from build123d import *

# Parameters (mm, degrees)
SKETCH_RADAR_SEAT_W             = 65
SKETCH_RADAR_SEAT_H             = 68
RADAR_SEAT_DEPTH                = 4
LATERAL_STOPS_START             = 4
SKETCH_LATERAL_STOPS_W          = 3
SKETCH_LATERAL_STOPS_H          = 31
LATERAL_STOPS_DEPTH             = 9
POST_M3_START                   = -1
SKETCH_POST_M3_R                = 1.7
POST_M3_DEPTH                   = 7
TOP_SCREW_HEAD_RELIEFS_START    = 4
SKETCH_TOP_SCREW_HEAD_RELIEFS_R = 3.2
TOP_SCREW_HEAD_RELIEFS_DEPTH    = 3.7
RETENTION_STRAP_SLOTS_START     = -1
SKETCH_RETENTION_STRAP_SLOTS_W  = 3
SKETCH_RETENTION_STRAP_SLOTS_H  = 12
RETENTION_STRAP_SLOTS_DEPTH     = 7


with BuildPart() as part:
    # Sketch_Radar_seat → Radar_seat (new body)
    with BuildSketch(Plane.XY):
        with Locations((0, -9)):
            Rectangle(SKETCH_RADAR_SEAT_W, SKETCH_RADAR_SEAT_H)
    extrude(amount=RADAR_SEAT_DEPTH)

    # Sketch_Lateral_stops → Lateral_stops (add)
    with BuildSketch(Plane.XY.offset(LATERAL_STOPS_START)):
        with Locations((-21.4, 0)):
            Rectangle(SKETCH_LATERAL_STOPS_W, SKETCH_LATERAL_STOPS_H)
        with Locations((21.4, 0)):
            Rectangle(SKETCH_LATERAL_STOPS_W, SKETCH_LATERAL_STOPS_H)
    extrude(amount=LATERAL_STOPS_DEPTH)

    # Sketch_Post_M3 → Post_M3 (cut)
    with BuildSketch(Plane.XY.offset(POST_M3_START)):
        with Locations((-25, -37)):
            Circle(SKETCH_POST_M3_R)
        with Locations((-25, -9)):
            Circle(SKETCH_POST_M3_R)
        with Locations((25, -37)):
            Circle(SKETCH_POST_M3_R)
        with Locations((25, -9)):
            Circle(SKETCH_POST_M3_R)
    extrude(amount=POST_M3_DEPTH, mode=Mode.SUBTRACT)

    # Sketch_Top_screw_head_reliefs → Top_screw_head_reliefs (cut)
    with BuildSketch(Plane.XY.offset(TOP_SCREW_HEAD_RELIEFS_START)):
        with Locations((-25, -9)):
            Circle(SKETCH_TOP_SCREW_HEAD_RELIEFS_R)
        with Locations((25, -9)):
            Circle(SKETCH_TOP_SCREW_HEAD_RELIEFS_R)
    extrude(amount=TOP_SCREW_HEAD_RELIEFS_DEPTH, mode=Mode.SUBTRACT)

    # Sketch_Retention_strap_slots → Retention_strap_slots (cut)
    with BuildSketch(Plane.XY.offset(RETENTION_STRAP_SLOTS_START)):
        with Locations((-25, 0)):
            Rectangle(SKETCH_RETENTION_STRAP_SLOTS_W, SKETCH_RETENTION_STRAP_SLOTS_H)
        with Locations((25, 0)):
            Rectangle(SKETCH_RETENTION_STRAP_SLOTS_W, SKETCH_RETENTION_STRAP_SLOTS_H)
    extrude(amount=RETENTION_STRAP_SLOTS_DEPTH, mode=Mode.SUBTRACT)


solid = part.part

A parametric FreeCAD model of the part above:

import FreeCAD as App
import Part
import Sketcher

V = App.Vector
Q = App.Units.Quantity


def add_polygon(sketch, points):
    """Adds a closed chain of lines whose ends are joined by coincident constraints."""
    first, n = sketch.GeometryCount, len(points)
    for a, b in zip(points, points[1:] + points[:1]):
        sketch.addGeometry(Part.LineSegment(App.Vector(*a, 0), App.Vector(*b, 0)), False)
    for i in range(n):
        sketch.addConstraint(Sketcher.Constraint("Coincident", first + i, 2, first + (i + 1) % n, 1))

doc = App.newDocument("Part")
body = doc.addObject("PartDesign::Body", "Body")

# Sketch on XY plane
sketch1 = body.newObject("Sketcher::SketchObject", "Sketch")
sketch1.AttachmentSupport = (doc.getObject("XY_Plane"), [""])
sketch1.MapMode = "FlatFace"
add_polygon(sketch1, [(-32, 25), (-32, -43), (32, -43), (32, 25)])  # lines 0-3
sketch1.addConstraint(Sketcher.Constraint("Vertical", 0))
sketch1.addConstraint(Sketcher.Constraint("Horizontal", 1))
sketch1.addConstraint(Sketcher.Constraint("Vertical", 2))
sketch1.addConstraint(Sketcher.Constraint("Horizontal", 3))
sketch1.addConstraint(Sketcher.Constraint("DistanceX", 1, 1, 1, 2, Q("65 mm")))
sketch1.addConstraint(Sketcher.Constraint("DistanceY", 0, 2, 0, 1, Q("68 mm")))
sketch1.addConstraint(Sketcher.Constraint("DistanceY", 0, 2, -1, 1, Q("43 mm")))
sketch1.addConstraint(Sketcher.Constraint("DistanceX", 0, 2, -1, 1, Q("32.5 mm")))
pad1 = body.newObject("PartDesign::Pad", "Pad")
pad1.Profile = sketch1
pad1.Length = 4

# Sketch on XY plane
sketch2 = body.newObject("Sketcher::SketchObject", "Sketch001")
sketch2.AttachmentSupport = (doc.getObject("XY_Plane"), [""])
sketch2.MapMode = "FlatFace"
sketch2.AttachmentOffset = App.Placement(V(0, 0, 4), App.Rotation())
add_polygon(sketch2, [(-22.9, 15.5), (-22.9, -15.5), (-19.9, -15.5), (-19.9, 15.5)])  # lines 0-3
add_polygon(sketch2, [(19.9, 15.5), (19.9, -15.5), (22.9, -15.5), (22.9, 15.5)])  # lines 4-7
sketch2.addConstraint(Sketcher.Constraint("Vertical", 0))
sketch2.addConstraint(Sketcher.Constraint("Horizontal", 1))
sketch2.addConstraint(Sketcher.Constraint("Vertical", 2))
sketch2.addConstraint(Sketcher.Constraint("Horizontal", 3))
sketch2.addConstraint(Sketcher.Constraint("Vertical", 4))
sketch2.addConstraint(Sketcher.Constraint("Horizontal", 5))
sketch2.addConstraint(Sketcher.Constraint("Vertical", 6))
sketch2.addConstraint(Sketcher.Constraint("Horizontal", 7))
sketch2.addConstraint(Sketcher.Constraint("Symmetric", 2, 2, 4, 2, -1, 1))
sketch2.addConstraint(Sketcher.Constraint("Symmetric", 0, 2, 6, 2, -1, 1))
sketch2.addConstraint(Sketcher.Constraint("Horizontal", 1, 2, 4, 2))
sketch2.addConstraint(Sketcher.Constraint("DistanceX", 1, 1, 1, 2, Q("3 mm")))
sketch2.addConstraint(Sketcher.Constraint("DistanceY", 0, 2, 0, 1, Q("31 mm")))
sketch2.addConstraint(Sketcher.Constraint("DistanceX", 0, 2, -1, 1, Q("22.9 mm")))
pad2 = body.newObject("PartDesign::Pad", "Pad001")
pad2.Profile = sketch2
pad2.Length = 9

# Sketch on XY plane
sketch3 = body.newObject("Sketcher::SketchObject", "Sketch002")
sketch3.AttachmentSupport = (doc.getObject("XY_Plane"), [""])
sketch3.MapMode = "FlatFace"
sketch3.AttachmentOffset = App.Placement(V(0, 0, -1), App.Rotation())
sketch3.addGeometry(Part.Circle(V(-25, -37, 0), V(0, 0, 1), 1.7), False)
sketch3.addGeometry(Part.Circle(V(-25, -9, 0), V(0, 0, 1), 1.7), False)
sketch3.addGeometry(Part.Circle(V(25, -37, 0), V(0, 0, 1), 1.7), False)
sketch3.addGeometry(Part.Circle(V(25, -9, 0), V(0, 0, 1), 1.7), False)
sketch3.addConstraint(Sketcher.Constraint("Equal", 0, 1))
sketch3.addConstraint(Sketcher.Constraint("Equal", 1, 2))
sketch3.addConstraint(Sketcher.Constraint("Equal", 2, 3))
sketch3.addConstraint(Sketcher.Constraint("Symmetric", 0, 3, 2, 3, -2))
sketch3.addConstraint(Sketcher.Constraint("Symmetric", 1, 3, 3, 3, -2))
sketch3.addConstraint(Sketcher.Constraint("Vertical", 0, 3, 1, 3))
sketch3.addConstraint(Sketcher.Constraint("Diameter", 0, Q("3.4 mm")))
sketch3.addConstraint(Sketcher.Constraint("DistanceX", 0, 3, -1, 1, Q("25 mm")))
sketch3.addConstraint(Sketcher.Constraint("DistanceY", 0, 3, -1, 1, Q("37 mm")))
sketch3.addConstraint(Sketcher.Constraint("DistanceY", 1, 3, -1, 1, Q("9 mm")))
pocket1 = body.newObject("PartDesign::Pocket", "Pocket")
pocket1.Profile = sketch3
pocket1.Length = 7
pocket1.Reversed = True

# Sketch on XY plane
sketch4 = body.newObject("Sketcher::SketchObject", "Sketch003")
sketch4.AttachmentSupport = (doc.getObject("XY_Plane"), [""])
sketch4.MapMode = "FlatFace"
sketch4.AttachmentOffset = App.Placement(V(0, 0, 4), App.Rotation())
sketch4.addGeometry(Part.Circle(V(-25, -9, 0), V(0, 0, 1), 3.2), False)
sketch4.addGeometry(Part.Circle(V(25, -9, 0), V(0, 0, 1), 3.2), False)
sketch4.addConstraint(Sketcher.Constraint("Equal", 0, 1))
sketch4.addConstraint(Sketcher.Constraint("Symmetric", 0, 3, 1, 3, -2))
sketch4.addConstraint(Sketcher.Constraint("Diameter", 0, Q("6.4 mm")))
sketch4.addConstraint(Sketcher.Constraint("DistanceX", 0, 3, -1, 1, Q("25 mm")))
sketch4.addConstraint(Sketcher.Constraint("DistanceY", 0, 3, -1, 1, Q("9 mm")))
pocket2 = body.newObject("PartDesign::Pocket", "Pocket001")
pocket2.Profile = sketch4
pocket2.Length = 3.7
pocket2.Reversed = True

# Sketch on XY plane
sketch5 = body.newObject("Sketcher::SketchObject", "Sketch004")
sketch5.AttachmentSupport = (doc.getObject("XY_Plane"), [""])
sketch5.MapMode = "FlatFace"
sketch5.AttachmentOffset = App.Placement(V(0, 0, -1), App.Rotation())
add_polygon(sketch5, [(-26.5, 6), (-26.5, -6), (-23.5, -6), (-23.5, 6)])  # lines 0-3
add_polygon(sketch5, [(23.5, 6), (23.5, -6), (26.5, -6), (26.5, 6)])  # lines 4-7
sketch5.addConstraint(Sketcher.Constraint("Vertical", 0))
sketch5.addConstraint(Sketcher.Constraint("Horizontal", 1))
sketch5.addConstraint(Sketcher.Constraint("Vertical", 2))
sketch5.addConstraint(Sketcher.Constraint("Horizontal", 3))
sketch5.addConstraint(Sketcher.Constraint("Vertical", 4))
sketch5.addConstraint(Sketcher.Constraint("Horizontal", 5))
sketch5.addConstraint(Sketcher.Constraint("Vertical", 6))
sketch5.addConstraint(Sketcher.Constraint("Horizontal", 7))
sketch5.addConstraint(Sketcher.Constraint("Symmetric", 2, 2, 4, 2, -1, 1))
sketch5.addConstraint(Sketcher.Constraint("Symmetric", 0, 2, 6, 2, -1, 1))
sketch5.addConstraint(Sketcher.Constraint("Horizontal", 1, 2, 4, 2))
sketch5.addConstraint(Sketcher.Constraint("DistanceX", 1, 1, 1, 2, Q("3 mm")))
sketch5.addConstraint(Sketcher.Constraint("DistanceY", 0, 2, 0, 1, Q("12 mm")))
sketch5.addConstraint(Sketcher.Constraint("DistanceX", 1, 2, 4, 2, Q("47 mm")))
pocket3 = body.newObject("PartDesign::Pocket", "Pocket002")
pocket3.Profile = sketch5
pocket3.Length = 7
pocket3.Reversed = True

doc.recompute()
